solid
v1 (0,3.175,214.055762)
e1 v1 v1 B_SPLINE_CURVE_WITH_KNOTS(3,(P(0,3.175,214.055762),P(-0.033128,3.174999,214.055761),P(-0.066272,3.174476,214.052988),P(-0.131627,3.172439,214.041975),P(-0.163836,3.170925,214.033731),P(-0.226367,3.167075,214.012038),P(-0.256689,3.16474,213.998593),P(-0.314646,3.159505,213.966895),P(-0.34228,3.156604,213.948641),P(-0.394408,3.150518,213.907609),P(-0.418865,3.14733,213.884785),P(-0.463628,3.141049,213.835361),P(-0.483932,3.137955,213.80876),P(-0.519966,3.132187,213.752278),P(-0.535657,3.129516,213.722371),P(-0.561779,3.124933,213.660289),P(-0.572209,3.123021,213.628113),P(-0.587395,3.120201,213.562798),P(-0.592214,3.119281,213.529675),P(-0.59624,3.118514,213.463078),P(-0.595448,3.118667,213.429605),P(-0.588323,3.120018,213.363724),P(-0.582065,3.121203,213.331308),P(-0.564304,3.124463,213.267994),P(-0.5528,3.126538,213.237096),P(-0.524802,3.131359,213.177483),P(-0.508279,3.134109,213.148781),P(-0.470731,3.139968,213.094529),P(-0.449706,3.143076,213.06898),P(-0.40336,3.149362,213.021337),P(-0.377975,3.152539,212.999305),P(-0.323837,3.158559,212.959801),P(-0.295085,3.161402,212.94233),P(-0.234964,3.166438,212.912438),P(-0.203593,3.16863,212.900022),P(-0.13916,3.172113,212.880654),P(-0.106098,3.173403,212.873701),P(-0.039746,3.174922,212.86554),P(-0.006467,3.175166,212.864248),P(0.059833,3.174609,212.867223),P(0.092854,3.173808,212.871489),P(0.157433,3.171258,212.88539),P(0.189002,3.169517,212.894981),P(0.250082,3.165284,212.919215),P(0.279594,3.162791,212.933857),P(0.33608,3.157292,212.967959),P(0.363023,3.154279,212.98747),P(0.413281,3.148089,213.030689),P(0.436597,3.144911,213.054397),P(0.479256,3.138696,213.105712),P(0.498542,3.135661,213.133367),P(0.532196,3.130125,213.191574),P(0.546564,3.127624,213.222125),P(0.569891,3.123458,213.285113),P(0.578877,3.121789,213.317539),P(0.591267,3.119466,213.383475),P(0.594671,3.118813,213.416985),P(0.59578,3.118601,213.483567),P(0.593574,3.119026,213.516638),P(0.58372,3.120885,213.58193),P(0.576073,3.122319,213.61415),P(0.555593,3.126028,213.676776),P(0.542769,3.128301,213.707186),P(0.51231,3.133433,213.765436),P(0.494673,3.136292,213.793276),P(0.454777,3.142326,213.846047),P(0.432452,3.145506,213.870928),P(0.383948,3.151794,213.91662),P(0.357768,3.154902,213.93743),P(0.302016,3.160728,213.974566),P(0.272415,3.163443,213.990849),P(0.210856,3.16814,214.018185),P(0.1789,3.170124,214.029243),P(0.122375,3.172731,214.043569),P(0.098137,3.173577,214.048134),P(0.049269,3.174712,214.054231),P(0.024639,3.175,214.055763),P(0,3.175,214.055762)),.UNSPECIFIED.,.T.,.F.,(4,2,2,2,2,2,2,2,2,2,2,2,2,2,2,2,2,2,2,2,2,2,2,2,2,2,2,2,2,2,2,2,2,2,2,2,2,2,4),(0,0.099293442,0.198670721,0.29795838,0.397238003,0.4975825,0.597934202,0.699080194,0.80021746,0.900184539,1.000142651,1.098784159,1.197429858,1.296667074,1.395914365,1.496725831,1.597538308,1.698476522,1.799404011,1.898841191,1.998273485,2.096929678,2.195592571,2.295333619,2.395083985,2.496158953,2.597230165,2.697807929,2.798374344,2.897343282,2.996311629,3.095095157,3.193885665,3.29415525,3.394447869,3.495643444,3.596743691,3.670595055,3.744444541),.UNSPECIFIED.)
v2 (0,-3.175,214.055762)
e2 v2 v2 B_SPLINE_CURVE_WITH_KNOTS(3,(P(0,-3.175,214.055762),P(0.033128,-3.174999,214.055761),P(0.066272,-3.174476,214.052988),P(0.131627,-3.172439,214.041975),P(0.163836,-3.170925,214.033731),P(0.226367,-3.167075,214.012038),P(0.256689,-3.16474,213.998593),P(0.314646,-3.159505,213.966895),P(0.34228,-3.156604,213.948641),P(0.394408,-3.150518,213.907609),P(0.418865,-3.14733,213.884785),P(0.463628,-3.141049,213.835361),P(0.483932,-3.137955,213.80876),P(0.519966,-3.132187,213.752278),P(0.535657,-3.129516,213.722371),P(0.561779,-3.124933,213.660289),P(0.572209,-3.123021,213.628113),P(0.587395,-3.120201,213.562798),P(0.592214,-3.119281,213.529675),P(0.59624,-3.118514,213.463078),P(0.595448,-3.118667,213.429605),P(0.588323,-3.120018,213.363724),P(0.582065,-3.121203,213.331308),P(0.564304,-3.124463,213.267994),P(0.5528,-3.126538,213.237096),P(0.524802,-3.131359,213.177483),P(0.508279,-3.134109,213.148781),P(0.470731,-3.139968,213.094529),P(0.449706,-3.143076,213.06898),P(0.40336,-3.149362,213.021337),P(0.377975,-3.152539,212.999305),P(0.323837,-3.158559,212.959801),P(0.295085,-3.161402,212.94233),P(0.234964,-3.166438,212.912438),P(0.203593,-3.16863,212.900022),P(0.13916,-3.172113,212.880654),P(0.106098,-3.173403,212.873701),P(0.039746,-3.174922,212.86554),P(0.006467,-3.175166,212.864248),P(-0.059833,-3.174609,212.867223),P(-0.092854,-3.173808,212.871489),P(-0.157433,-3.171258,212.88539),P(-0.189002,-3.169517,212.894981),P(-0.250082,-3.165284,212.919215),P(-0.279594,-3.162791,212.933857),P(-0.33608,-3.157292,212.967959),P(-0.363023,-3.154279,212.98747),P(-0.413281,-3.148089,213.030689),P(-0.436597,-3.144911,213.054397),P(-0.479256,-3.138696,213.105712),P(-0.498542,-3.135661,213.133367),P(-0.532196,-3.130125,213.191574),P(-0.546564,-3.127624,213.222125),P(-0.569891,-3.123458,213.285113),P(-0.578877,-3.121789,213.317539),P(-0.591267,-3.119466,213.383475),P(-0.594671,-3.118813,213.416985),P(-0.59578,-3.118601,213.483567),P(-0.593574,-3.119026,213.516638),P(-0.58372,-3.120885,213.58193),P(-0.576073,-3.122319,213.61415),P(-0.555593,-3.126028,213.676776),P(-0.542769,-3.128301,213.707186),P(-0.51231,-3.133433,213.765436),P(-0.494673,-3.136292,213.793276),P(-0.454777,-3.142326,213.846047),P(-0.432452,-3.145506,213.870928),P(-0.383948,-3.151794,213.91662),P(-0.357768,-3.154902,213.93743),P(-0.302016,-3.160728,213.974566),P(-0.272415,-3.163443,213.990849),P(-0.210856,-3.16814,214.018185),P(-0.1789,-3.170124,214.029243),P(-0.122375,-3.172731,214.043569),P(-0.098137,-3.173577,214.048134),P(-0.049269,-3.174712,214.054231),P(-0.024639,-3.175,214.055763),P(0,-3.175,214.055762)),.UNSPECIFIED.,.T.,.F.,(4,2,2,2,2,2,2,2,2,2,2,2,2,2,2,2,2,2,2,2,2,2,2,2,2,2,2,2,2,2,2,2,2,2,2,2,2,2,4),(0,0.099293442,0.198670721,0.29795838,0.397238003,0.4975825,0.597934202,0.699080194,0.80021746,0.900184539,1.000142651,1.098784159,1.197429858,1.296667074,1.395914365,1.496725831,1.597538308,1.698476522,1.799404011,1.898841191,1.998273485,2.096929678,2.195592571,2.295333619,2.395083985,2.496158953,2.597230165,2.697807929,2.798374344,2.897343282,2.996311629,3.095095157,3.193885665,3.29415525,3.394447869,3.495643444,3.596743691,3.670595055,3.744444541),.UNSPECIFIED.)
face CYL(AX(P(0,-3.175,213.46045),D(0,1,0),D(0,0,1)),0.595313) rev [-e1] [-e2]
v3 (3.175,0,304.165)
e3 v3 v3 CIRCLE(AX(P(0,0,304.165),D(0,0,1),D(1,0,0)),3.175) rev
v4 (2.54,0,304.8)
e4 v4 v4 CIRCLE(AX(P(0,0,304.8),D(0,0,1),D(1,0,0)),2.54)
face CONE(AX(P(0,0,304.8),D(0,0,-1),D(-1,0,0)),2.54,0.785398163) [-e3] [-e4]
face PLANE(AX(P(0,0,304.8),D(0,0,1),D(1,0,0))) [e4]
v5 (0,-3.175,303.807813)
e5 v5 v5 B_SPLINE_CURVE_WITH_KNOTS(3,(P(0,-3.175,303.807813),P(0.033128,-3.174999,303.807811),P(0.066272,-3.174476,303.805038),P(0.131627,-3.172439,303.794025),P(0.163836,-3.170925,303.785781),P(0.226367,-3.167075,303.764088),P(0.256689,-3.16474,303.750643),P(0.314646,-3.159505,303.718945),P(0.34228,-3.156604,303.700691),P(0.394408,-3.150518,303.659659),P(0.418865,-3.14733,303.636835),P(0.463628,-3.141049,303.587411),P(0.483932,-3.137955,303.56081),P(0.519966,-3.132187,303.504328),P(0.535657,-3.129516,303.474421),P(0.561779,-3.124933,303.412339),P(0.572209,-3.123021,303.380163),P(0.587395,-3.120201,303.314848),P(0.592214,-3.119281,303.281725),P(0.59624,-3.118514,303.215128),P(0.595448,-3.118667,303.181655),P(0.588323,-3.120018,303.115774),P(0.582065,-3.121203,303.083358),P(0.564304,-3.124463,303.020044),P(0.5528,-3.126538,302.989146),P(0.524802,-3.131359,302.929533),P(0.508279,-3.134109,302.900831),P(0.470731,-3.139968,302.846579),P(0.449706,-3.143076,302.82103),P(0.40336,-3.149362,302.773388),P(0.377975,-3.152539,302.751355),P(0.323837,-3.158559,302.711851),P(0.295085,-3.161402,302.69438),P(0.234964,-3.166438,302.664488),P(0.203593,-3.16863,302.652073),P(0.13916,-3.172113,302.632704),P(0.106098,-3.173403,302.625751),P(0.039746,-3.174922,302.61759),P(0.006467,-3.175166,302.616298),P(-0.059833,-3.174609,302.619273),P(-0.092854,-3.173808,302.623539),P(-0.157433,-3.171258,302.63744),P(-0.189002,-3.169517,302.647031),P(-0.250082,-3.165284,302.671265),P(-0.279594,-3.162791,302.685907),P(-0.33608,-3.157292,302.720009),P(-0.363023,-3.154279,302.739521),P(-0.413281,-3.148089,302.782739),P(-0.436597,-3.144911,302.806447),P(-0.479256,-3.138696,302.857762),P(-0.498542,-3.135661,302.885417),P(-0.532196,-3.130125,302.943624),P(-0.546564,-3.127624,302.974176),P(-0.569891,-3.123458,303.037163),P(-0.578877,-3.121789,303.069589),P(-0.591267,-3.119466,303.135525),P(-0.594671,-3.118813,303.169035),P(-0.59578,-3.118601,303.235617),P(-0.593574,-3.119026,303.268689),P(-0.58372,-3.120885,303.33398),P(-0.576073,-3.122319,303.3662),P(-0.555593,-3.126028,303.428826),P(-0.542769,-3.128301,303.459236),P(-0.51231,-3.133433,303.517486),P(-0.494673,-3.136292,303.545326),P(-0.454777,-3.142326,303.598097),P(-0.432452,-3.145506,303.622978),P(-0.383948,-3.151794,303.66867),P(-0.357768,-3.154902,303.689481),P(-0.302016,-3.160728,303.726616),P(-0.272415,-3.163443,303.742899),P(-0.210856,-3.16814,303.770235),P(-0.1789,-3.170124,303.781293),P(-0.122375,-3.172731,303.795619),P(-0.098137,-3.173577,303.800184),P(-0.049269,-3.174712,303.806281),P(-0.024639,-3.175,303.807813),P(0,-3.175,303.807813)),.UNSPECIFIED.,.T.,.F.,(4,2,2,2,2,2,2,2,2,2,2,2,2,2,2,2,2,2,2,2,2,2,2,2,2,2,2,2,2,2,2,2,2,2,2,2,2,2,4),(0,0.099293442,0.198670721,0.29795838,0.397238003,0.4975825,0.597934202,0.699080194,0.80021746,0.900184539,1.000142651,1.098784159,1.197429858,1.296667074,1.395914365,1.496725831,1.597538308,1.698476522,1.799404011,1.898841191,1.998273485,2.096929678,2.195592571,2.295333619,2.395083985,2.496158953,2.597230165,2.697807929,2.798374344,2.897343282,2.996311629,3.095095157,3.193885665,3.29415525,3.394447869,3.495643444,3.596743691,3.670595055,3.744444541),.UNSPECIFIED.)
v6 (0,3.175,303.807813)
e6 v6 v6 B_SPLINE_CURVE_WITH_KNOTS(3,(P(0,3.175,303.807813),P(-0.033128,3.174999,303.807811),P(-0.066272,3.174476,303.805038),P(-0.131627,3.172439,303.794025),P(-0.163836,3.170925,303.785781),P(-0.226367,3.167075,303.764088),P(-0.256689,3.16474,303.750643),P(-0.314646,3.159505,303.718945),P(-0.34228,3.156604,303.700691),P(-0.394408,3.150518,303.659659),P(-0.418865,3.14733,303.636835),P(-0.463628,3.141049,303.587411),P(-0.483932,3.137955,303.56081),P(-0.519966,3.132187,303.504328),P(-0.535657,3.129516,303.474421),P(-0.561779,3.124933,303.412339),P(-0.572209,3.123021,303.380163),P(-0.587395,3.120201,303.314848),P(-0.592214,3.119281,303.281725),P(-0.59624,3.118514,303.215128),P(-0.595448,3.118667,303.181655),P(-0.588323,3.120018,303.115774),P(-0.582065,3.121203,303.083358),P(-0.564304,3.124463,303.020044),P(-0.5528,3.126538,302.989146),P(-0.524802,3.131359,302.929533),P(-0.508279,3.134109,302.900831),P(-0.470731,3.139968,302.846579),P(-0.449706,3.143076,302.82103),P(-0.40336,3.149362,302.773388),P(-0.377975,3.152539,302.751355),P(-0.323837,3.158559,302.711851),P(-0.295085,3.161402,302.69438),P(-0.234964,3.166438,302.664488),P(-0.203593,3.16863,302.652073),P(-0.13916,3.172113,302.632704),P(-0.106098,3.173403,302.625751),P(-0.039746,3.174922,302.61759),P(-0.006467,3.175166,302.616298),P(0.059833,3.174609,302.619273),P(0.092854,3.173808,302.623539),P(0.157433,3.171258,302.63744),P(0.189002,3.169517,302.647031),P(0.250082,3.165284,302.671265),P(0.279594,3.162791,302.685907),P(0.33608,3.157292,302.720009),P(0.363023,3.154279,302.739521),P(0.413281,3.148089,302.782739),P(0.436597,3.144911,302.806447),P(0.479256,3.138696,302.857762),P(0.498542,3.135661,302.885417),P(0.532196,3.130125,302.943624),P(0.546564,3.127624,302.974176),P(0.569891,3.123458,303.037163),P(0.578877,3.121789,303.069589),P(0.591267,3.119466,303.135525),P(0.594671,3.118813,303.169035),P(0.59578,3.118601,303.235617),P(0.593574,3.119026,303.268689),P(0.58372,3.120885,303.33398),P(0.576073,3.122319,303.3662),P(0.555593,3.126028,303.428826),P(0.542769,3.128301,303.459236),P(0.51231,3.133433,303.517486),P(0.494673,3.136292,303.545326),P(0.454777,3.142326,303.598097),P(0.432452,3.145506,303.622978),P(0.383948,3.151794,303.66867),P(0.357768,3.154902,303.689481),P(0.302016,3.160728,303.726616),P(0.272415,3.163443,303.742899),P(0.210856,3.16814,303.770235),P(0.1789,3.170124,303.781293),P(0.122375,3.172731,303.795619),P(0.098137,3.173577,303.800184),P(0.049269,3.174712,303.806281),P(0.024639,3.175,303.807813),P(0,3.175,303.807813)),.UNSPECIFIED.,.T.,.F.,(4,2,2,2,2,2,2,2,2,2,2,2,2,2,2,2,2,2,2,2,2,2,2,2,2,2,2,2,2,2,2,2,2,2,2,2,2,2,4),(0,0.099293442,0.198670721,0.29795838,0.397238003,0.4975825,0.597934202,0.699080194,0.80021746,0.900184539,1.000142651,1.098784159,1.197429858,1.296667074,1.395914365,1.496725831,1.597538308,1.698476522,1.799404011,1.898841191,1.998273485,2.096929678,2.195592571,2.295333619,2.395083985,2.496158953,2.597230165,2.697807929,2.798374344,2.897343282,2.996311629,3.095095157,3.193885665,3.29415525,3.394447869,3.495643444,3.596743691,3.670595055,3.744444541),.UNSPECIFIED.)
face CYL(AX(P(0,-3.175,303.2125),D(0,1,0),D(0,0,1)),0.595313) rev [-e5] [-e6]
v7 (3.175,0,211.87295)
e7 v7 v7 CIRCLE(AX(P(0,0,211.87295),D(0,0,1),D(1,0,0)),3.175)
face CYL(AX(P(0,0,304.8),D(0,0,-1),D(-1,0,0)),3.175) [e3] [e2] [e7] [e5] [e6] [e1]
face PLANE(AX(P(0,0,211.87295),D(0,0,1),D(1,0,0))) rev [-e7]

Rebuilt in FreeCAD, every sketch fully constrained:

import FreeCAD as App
import Part
import Sketcher
from FreeCAD import Vector
Q = App.Units.Quantity


def edges_at(feature, points):
    """Names of the edges that pass closest to the given points."""
    edges = feature.Shape.Edges
    near = lambda p: min(range(len(edges)), key=lambda i: edges[i].distToShape(Part.Vertex(*p))[0])
    return sorted({f"Edge{near(p) + 1}" for p in points})

doc = App.newDocument("Part")
params = doc.addObject("Spreadsheet::Sheet", "Params")
for row, (alias, value) in enumerate([
    ("sketch1_diameter", "0.25 in"),
    ("pad1_length", "24 in"),
    ("chamfer_size", "0.025 in"),
    ("sketch2_diameter", "0.25 in"),
    ("sketch3_diameter", "0.046875 in"),
], start=1):
    params.set(f"A{row}", alias)
    params.set(f"B{row}", "=" + value)
    params.setAlias(f"B{row}", alias)

body = doc.addObject("PartDesign::Body", "Body")

# Sketch on XY plane
sketch1 = body.newObject("Sketcher::SketchObject", "Sketch")
sketch1.AttachmentSupport = (doc.getObject("XY_Plane"), [""])
sketch1.MapMode = "FlatFace"
sketch1.addGeometry(Part.Circle(Vector(0, 0, 0), Vector(0, 0, 1), 3.2), False)
sketch1.addConstraint([
    Sketcher.Constraint("Coincident", 0, 3, -1, 1),
    Sketcher.Constraint("Diameter", 0, Q("0.25 in")),
])
sketch1.setExpression("Constraints[1]", "Params.sketch1_diameter")
pad1 = body.newObject("PartDesign::Pad", "Pad")
pad1.Profile = sketch1
pad1.setExpression("Length", "Params.pad1_length")
pad1.Midplane = True
doc.recompute()

chamfer = body.newObject("PartDesign::Chamfer", "Chamfer")
chamfer.Base = (pad1, edges_at(pad1, [(-3.175, 0, -304.8), (-3.175, 0, 304.8)]))
chamfer.setExpression("Size", "Params.chamfer_size")

# Sketch on XY plane
sketch2 = body.newObject("Sketcher::SketchObject", "Sketch001")
sketch2.AttachmentSupport = (doc.getObject("XY_Plane"), [""])
sketch2.MapMode = "FlatFace"
sketch2.AttachmentOffset = App.Placement(Vector(0, 0, 211.87295), App.Rotation())
sketch2.addGeometry(Part.Circle(Vector(0, 0, 0), Vector(0, 0, 1), 3.2), False)
sketch2.addConstraint([
    Sketcher.Constraint("Coincident", 0, 3, -1, 1),
    Sketcher.Constraint("Diameter", 0, Q("0.25 in")),
])
sketch2.setExpression("Constraints[1]", "Params.sketch2_diameter")
pocket1 = body.newObject("PartDesign::Pocket", "Pocket")
pocket1.Profile = sketch2
pocket1.Type = "ThroughAll"

# Sketch on XZ plane
sketch3 = body.newObject("Sketcher::SketchObject", "Sketch002")
sketch3.AttachmentSupport = (doc.getObject("XZ_Plane"), [""])
sketch3.MapMode = "FlatFace"
sketch3.addGeometry([
    Part.Circle(Vector(0, 213.5, 0), Vector(0, 0, 1), 0.6),
    Part.Circle(Vector(0, 303.2, 0), Vector(0, 0, 1), 0.6),
], False)
sketch3.addConstraint([
    Sketcher.Constraint("Equal", 0, 1),
    Sketcher.Constraint("PointOnObject", 0, 3, -2),
    Sketcher.Constraint("PointOnObject", 1, 3, -2),
    Sketcher.Constraint("Diameter", 0, Q("0.046875 in")),
    Sketcher.Constraint("DistanceY", -1, 1, 1, 3, Q("11.9375 in")),
    Sketcher.Constraint("DistanceY", -1, 1, 0, 3, Q("213.46045 mm")),
])
sketch3.setExpression("Constraints[3]", "Params.sketch3_diameter")
pocket2 = body.newObject("PartDesign::Pocket", "Pocket001")
pocket2.Profile = sketch3
pocket2.Type = "ThroughAll"
pocket2.Midplane = True

doc.recompute()
